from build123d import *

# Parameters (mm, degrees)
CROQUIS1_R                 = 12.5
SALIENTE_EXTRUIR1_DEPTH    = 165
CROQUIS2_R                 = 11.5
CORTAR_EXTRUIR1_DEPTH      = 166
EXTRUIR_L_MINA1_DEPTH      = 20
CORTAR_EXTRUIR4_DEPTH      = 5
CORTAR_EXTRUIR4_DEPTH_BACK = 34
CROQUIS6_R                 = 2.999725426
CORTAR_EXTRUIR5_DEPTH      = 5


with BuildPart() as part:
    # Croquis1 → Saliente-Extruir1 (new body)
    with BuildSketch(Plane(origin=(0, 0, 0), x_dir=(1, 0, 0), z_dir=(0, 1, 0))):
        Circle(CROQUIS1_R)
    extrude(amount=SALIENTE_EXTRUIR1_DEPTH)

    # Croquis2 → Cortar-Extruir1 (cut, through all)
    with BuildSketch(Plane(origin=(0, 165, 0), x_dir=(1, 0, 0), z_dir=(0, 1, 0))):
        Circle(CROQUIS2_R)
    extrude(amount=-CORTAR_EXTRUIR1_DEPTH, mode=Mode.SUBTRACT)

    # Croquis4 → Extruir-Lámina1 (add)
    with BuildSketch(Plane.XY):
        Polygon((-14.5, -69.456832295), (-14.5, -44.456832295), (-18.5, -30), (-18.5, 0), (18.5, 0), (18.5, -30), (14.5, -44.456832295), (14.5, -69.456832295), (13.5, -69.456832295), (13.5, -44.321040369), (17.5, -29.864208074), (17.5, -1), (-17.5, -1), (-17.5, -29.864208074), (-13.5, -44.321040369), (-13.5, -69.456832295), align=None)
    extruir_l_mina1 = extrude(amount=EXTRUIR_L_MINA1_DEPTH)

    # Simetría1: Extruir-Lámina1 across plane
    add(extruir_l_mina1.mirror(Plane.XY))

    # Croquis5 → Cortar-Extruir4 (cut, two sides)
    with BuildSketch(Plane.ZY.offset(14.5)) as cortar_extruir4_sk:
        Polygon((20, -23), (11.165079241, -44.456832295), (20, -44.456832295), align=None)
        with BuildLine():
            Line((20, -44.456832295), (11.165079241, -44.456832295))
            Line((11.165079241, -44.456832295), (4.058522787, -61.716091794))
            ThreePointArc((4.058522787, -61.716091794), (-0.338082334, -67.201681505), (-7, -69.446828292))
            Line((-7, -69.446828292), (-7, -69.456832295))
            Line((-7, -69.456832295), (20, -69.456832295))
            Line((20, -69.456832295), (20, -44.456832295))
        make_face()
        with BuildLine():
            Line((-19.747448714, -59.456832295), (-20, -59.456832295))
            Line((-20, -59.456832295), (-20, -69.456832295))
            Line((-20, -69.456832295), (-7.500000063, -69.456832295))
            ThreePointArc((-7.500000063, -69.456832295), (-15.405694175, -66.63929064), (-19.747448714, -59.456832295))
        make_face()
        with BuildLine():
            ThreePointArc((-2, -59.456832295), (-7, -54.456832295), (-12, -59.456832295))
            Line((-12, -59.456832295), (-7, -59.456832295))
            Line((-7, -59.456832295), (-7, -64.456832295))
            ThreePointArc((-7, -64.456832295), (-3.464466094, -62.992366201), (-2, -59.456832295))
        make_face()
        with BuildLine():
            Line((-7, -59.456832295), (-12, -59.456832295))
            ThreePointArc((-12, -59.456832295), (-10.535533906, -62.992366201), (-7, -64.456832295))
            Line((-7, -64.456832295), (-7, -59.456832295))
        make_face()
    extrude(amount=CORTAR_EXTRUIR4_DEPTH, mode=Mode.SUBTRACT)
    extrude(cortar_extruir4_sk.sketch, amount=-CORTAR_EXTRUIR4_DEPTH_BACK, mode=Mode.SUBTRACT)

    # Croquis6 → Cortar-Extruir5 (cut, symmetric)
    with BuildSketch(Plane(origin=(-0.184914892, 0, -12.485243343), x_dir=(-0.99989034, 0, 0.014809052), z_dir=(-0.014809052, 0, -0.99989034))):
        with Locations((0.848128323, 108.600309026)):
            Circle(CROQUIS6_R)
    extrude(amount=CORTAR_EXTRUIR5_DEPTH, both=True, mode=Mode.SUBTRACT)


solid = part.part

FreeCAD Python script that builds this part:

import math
import FreeCAD as App
import Part
import Sketcher


def add_polygon(sketch, points):
    """Adds a closed chain of lines whose ends are joined by coincident constraints."""
    first, n = sketch.GeometryCount, len(points)
    for a, b in zip(points, points[1:] + points[:1]):
        sketch.addGeometry(Part.LineSegment(App.Vector(*a, 0), App.Vector(*b, 0)), False)
    for i in range(n):
        sketch.addConstraint(Sketcher.Constraint("Coincident", first + i, 2, first + (i + 1) % n, 1))

doc = App.newDocument("Part")
params = doc.addObject("Spreadsheet::Sheet", "Params")
for row, (alias, value) in enumerate([
    ("sketch1_diameter", "25 mm"),
    ("pad1_length", "165 mm"),
    ("sketch2_diameter", "23 mm"),
    ("sketch3_width", "1 mm"),
    ("sketch3_width2", "35 mm"),
    ("sketch3_height", "25 mm"),
    ("sketch3_height2", "30 mm"),
    ("sketch3_length", "15 mm"),
    ("pad2_length", "20 mm"),
    ("sketch4_radius", "5 mm"),
    ("sketch4_radius2", "12.5 mm"),
    ("sketch4_width", "10 mm"),
    ("sketch4_height", "27 mm"),
    ("sketch4_height2", "12.5 mm"),
    ("pocket3_length", "10 mm"),
], start=1):
    params.set(f"A{row}", alias)
    params.set(f"B{row}", "=" + value)
    params.setAlias(f"B{row}", alias)

body = doc.addObject("PartDesign::Body", "Body")

# Sketch on XZ plane
sketch1 = body.newObject("Sketcher::SketchObject", "Sketch")
sketch1.AttachmentSupport = (doc.getObject("XZ_Plane"), [""])
sketch1.MapMode = "FlatFace"
sketch1.addGeometry(Part.Circle(App.Vector(0, 0, 0), App.Vector(0, 0, 1), 12.5), False)
sketch1.addConstraint([
    Sketcher.Constraint("Coincident", 0, 3, -1, 1),
    Sketcher.Constraint("Diameter", 0, 25.0),
])
sketch1.setExpression("Constraints[1]", "Params.sketch1_diameter")
pad1 = body.newObject("PartDesign::Pad", "Pad")
pad1.Profile = sketch1
pad1.setExpression("Length", "Params.pad1_length")
pad1.Reversed = True

# Sketch on XZ plane
sketch2 = body.newObject("Sketcher::SketchObject", "Sketch001")
sketch2.AttachmentSupport = (doc.getObject("XZ_Plane"), [""])
sketch2.MapMode = "FlatFace"
sketch2.AttachmentOffset = App.Placement(App.Vector(0, 0, -165), App.Rotation())
sketch2.addGeometry(Part.Circle(App.Vector(0, 0, 0), App.Vector(0, 0, 1), 11.5), False)
sketch2.addConstraint([
    Sketcher.Constraint("Coincident", 0, 3, -1, 1),
    Sketcher.Constraint("Diameter", 0, 23.0),
])
sketch2.setExpression("Constraints[1]", "Params.sketch2_diameter")
pocket1 = body.newObject("PartDesign::Pocket", "Pocket")
pocket1.Profile = sketch2
pocket1.Type = "ThroughAll"
pocket1.Reversed = True

# Sketch on XY plane
sketch3 = body.newObject("Sketcher::SketchObject", "Sketch002")
sketch3.AttachmentSupport = (doc.getObject("XY_Plane"), [""])
sketch3.MapMode = "FlatFace"
add_polygon(sketch3, [(-14.5, -44.456832), (-14.5, -69.456832), (-13.5, -69.456832), (-13.5, -44.32104), (-17.5, -29.864208), (-17.5, -1), (17.5, -1), (17.5, -29.864208), (13.5, -44.32104), (13.5, -69.456832), (14.5, -69.456832), (14.5, -44.456832), (18.5, -30), (18.5, 0), (-18.5, 0), (-18.5, -30)])  # lines 0-15
sketch3.addConstraint([
    Sketcher.Constraint("Vertical", 0),
    Sketcher.Constraint("Horizontal", 1),
    Sketcher.Constraint("Vertical", 2),
    Sketcher.Constraint("Vertical", 4),
    Sketcher.Constraint("Horizontal", 5),
    Sketcher.Constraint("Vertical", 6),
    Sketcher.Constraint("Vertical", 8),
    Sketcher.Constraint("Horizontal", 9),
    Sketcher.Constraint("Vertical", 10),
    Sketcher.Constraint("Vertical", 12),
    Sketcher.Constraint("Horizontal", 13),
    Sketcher.Constraint("Vertical", 14),
    Sketcher.Constraint("Symmetric", 12, 2, 13, 2, -1, 1),
    Sketcher.Constraint("Symmetric", 3, 2, 6, 2, -2),
    Sketcher.Constraint("Symmetric", 2, 2, 7, 2, -2),
    Sketcher.Constraint("Symmetric", 0, 2, 9, 2, -2),
    Sketcher.Constraint("Parallel", 7, 11),
    Sketcher.Constraint("Parallel", 3, 15),
    Sketcher.Constraint("Horizontal", 11, 2, 14, 2),
    Sketcher.Constraint("Equal", 7, 11),
    Sketcher.Constraint("DistanceX", 1, 1, 1, 2, 1.0),
    Sketcher.Constraint("DistanceX", 5, 1, 5, 2, 35.0),
    Sketcher.Constraint("DistanceY", 0, 2, 0, 1, 25.0),
    Sketcher.Constraint("DistanceY", 12, 1, 12, 2, 30.0),
    Sketcher.Constraint("Distance", 3, 15.0),
    Sketcher.Constraint("DistanceY", 4, 2, -1, 1, 1.0),
    Sketcher.Constraint("DistanceX", 3, 2, 2, 2, 4.0),
    Sketcher.Constraint("DistanceY", 2, 1, 2, 2, 25.135792),
])
sketch3.setExpression("Constraints[36]", "Params.sketch3_width")
sketch3.setExpression("Constraints[37]", "Params.sketch3_width2")
sketch3.setExpression("Constraints[38]", "Params.sketch3_height")
sketch3.setExpression("Constraints[39]", "Params.sketch3_height2")
sketch3.setExpression("Constraints[40]", "Params.sketch3_length")
pad2 = body.newObject("PartDesign::Pad", "Pad001")
pad2.Profile = sketch3
pad2.setExpression("Length", "Params.pad2_length")
doc.recompute()

mirrored = body.newObject("PartDesign::Mirrored", "Mirrored")
mirrored.Originals = [pad2]
mirrored.MirrorPlane = (doc.getObject("XY_Plane"), [""])
body.Tip = mirrored

# Sketch on YZ plane
sketch4 = body.newObject("Sketcher::SketchObject", "Sketch003")
sketch4.AttachmentSupport = (doc.getObject("YZ_Plane"), [""])
sketch4.MapMode = "FlatFace"
sketch4.AttachmentOffset = App.Placement(App.Vector(0, 0, -14.5), App.Rotation())
sketch4.addGeometry([
    Part.LineSegment(App.Vector(-23, 20, 0), App.Vector(-44.456832, 11.165079, 0)),  # 0
    Part.LineSegment(App.Vector(-44.456832, 11.165079, 0), App.Vector(-61.716092, 4.058523, 0)),  # 1
    Part.ArcOfCircle(Part.Circle(App.Vector(-56.956832, -7.5, 0), App.Vector(0, 0, 1), 12.5), math.radians(112.379575), math.radians(177.707557)),  # 2
    Part.LineSegment(App.Vector(-69.446828, -7, 0), App.Vector(-69.456832, -7, 0)),  # 3
    Part.LineSegment(App.Vector(-69.456832, -7, 0), App.Vector(-69.456832, 20, 0)),  # 4
    Part.LineSegment(App.Vector(-69.456832, 20, 0), App.Vector(-23, 20, 0)),  # 5
    Part.LineSegment(App.Vector(-59.456832, -19.747449, 0), App.Vector(-59.456832, -20, 0)),  # 6
    Part.LineSegment(App.Vector(-59.456832, -20, 0), App.Vector(-69.456832, -20, 0)),  # 7
    Part.LineSegment(App.Vector(-69.456832, -20, 0), App.Vector(-69.456832, -7.5, 0)),  # 8
    Part.ArcOfCircle(Part.Circle(App.Vector(-56.956832, -7.5, 0), App.Vector(0, 0, 1), 12.5), math.radians(-180), math.radians(-101.536959)),  # 9
    Part.ArcOfCircle(Part.Circle(App.Vector(-59.456832, -7, 0), App.Vector(0, 0, 1), 5), math.radians(-90), math.radians(90)),  # 10
    Part.ArcOfCircle(Part.Circle(App.Vector(-59.456832, -7, 0), App.Vector(0, 0, 1), 5), math.radians(180), math.radians(270)),  # 11
    Part.ArcOfCircle(Part.Circle(App.Vector(-59.456832, -7, 0), App.Vector(0, 0, 1), 5), math.radians(90), math.radians(180)),  # 12
], False)
sketch4.addConstraint([
    Sketcher.Constraint("Coincident", 0, 2, 1, 1),
    Sketcher.Constraint("Tangent", 1, 2, 2, 1),
    Sketcher.Constraint("Coincident", 2, 2, 3, 1),
    Sketcher.Constraint("Coincident", 3, 2, 4, 1),
    Sketcher.Constraint("Coincident", 4, 2, 5, 1),
    Sketcher.Constraint("Coincident", 5, 2, 0, 1),
    Sketcher.Constraint("Coincident", 6, 2, 7, 1),
    Sketcher.Constraint("Coincident", 7, 2, 8, 1),
    Sketcher.Constraint("Tangent", 8, 2, 9, 1),
    Sketcher.Constraint("Coincident", 9, 2, 6, 1),
    Sketcher.Constraint("Tangent", 10, 1, 11, 2),
    Sketcher.Constraint("Tangent", 11, 1, 12, 2),
    Sketcher.Constraint("Tangent", 12, 1, 10, 2),
    Sketcher.Constraint("Horizontal", 3),
    Sketcher.Constraint("Vertical", 4),
    Sketcher.Constraint("Horizontal", 5),
    Sketcher.Constraint("Vertical", 6),
    Sketcher.Constraint("Horizontal", 7),
    Sketcher.Constraint("Vertical", 8),
    Sketcher.Constraint("Coincident", 9, 3, 2, 3),
    Sketcher.Constraint("Equal", 2, 9),
    Sketcher.Constraint("Symmetric", 4, 2, 7, 2, -1),
    Sketcher.Constraint("Parallel", 0, 1),
    Sketcher.Constraint("Horizontal", 12, 3, 2, 2),
    Sketcher.Constraint("Horizontal", 3, 2, 11, 1),
    Sketcher.Constraint("Vertical", 12, 3, 6, 2),
    Sketcher.Constraint("Vertical", 9, 2, 10, 1),
    Sketcher.Constraint("Vertical", 10, 1, 12, 1),
    Sketcher.Constraint("Radius", 10, 5.0),
    Sketcher.Constraint("Radius", 2, 12.5),
    Sketcher.Constraint("DistanceX", 7, 2, 7, 1, 10.0),
    Sketcher.Constraint("DistanceY", 4, 1, 4, 2, 27.0),
    Sketcher.Constraint("DistanceY", 8, 1, 8, 2, 12.5),
    Sketcher.Constraint("DistanceY", 10, 3, -1, 1, 7.0),
    Sketcher.Constraint("DistanceX", 5, 2, -1, 1, 23.0),
    Sketcher.Constraint("DistanceX", 10, 3, 0, 2, 15.0),
    Sketcher.Constraint("Distance", 1, 18.665079),
])
sketch4.setExpression("Constraints[28]", "Params.sketch4_radius")
sketch4.setExpression("Constraints[29]", "Params.sketch4_radius2")
sketch4.setExpression("Constraints[30]", "Params.sketch4_width")
sketch4.setExpression("Constraints[31]", "Params.sketch4_height")
sketch4.setExpression("Constraints[32]", "Params.sketch4_height2")
pocket2 = body.newObject("PartDesign::Pocket", "Pocket001")
pocket2.Profile = sketch4
pocket2.Type = "ThroughAll"
pocket2.Midplane = True

# Sketch on an angled plane
sketch5 = body.newObject("Sketcher::SketchObject", "Sketch004")
sketch5.Placement = App.Placement(App.Vector(-0.184915, 0, -12.485243), App.Rotation(App.Vector(-0.99989034, 0, 0.014809052), App.Vector(0, 1, 0), App.Vector(-0.014809052, 0, -0.99989034), "ZXY"))
sketch5.addGeometry(Part.Circle(App.Vector(0.848128, 108.600309, 0), App.Vector(0, 0, 1), 2.999725), False)
sketch5.addConstraint([
    Sketcher.Constraint("Diameter", 0, 5.999451),
    Sketcher.Constraint("DistanceX", -1, 1, 0, 3, 0.848128),
    Sketcher.Constraint("DistanceY", -1, 1, 0, 3, 108.600309),
])
pocket3 = body.newObject("PartDesign::Pocket", "Pocket002")
pocket3.Profile = sketch5
pocket3.setExpression("Length", "Params.pocket3_length")
pocket3.Midplane = True

doc.recompute()
